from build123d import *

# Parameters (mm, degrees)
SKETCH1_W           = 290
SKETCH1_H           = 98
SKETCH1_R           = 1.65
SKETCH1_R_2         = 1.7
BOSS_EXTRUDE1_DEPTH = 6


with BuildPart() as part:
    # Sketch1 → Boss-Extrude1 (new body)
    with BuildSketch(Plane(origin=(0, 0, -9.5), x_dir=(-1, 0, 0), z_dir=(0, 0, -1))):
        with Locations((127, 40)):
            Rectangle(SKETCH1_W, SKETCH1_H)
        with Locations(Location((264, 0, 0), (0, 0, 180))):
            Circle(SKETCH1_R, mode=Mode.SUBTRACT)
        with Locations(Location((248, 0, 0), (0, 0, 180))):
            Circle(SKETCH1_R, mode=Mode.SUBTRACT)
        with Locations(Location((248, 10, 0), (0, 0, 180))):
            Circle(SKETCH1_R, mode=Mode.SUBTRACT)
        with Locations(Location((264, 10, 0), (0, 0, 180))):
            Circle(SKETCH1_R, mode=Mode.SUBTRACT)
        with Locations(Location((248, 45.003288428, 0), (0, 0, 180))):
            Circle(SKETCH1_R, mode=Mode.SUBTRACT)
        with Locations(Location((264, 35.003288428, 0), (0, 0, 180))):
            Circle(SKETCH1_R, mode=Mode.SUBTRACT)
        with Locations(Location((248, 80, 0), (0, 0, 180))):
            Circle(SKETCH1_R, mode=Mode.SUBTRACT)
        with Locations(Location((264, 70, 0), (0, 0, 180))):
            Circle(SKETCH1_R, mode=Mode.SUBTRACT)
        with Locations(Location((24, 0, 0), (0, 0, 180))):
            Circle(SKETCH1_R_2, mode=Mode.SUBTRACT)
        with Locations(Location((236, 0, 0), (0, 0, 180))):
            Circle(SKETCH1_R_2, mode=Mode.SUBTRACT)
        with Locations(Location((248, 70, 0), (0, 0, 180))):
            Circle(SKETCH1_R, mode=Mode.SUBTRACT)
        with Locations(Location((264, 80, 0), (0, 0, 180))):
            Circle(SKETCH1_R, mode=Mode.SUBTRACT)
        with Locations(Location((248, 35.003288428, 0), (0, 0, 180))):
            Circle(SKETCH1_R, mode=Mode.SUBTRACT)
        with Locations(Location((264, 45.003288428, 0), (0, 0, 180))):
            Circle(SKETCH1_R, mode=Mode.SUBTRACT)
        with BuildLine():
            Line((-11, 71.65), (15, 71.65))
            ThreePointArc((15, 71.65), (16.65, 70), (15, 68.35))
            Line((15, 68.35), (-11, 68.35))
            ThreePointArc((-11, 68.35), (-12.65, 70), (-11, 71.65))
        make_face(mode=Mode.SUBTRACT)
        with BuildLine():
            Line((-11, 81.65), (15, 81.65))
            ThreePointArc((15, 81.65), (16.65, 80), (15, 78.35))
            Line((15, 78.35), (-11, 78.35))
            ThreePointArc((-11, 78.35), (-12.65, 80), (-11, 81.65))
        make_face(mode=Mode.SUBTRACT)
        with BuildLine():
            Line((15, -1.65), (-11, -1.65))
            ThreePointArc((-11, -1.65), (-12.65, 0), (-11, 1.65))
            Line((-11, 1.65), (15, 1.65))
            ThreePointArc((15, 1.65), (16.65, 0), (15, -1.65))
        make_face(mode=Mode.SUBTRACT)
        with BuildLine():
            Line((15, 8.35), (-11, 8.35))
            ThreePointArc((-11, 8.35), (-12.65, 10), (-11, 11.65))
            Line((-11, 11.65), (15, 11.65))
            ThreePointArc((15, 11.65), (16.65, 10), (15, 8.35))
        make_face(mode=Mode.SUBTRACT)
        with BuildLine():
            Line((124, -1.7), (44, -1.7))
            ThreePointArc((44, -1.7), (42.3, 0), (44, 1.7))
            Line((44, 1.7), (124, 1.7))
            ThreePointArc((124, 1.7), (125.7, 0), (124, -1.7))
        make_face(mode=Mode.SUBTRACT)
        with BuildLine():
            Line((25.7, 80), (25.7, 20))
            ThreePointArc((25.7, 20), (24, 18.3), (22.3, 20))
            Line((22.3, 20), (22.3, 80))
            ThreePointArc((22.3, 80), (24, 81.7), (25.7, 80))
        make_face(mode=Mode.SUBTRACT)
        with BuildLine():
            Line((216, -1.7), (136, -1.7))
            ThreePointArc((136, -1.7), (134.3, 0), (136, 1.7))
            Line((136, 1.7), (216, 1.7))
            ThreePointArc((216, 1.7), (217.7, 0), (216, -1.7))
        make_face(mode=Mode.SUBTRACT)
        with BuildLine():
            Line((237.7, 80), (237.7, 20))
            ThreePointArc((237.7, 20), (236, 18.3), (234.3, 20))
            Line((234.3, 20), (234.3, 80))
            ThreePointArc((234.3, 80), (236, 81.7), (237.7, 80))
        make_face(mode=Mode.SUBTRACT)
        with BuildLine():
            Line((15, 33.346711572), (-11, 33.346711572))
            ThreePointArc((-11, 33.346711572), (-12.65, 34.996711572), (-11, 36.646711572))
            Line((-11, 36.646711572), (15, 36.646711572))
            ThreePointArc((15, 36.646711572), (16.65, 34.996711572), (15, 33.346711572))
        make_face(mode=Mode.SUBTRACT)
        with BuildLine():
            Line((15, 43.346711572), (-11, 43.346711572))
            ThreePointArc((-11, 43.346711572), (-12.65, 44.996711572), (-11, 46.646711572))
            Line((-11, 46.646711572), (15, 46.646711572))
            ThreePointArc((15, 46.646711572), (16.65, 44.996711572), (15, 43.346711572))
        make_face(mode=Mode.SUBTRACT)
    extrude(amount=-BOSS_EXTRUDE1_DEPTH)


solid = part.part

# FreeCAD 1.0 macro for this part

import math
import FreeCAD as App
import Part
import Sketcher


def add_polygon(sketch, points):
    """Adds a closed chain of lines whose ends are joined by coincident constraints."""
    first, n = sketch.GeometryCount, len(points)
    for a, b in zip(points, points[1:] + points[:1]):
        sketch.addGeometry(Part.LineSegment(App.Vector(*a, 0), App.Vector(*b, 0)), False)
    for i in range(n):
        sketch.addConstraint(Sketcher.Constraint("Coincident", first + i, 2, first + (i + 1) % n, 1))

doc = App.newDocument("Part")
body = doc.addObject("PartDesign::Body", "Body")

sketch1 = body.newObject("Sketcher::SketchObject", "Sketch")
sketch1.AttachmentSupport = (doc.getObject("XY_Plane"), [""])
sketch1.MapMode = "FlatFace"
sketch1.AttachmentOffset = App.Placement(App.Vector(0, 0, -9.5), App.Rotation())
add_polygon(sketch1, [(18, 89), (18, -9), (-272, -9), (-272, 89)])
sketch1.addGeometry(Part.ArcOfCircle(Part.Circle(App.Vector(-15, 0, 0), App.Vector(0, 0, 1), 1.6), math.radians(90), math.radians(270)), False)
sketch1.addGeometry(Part.LineSegment(App.Vector(-15, -1.6, 0), App.Vector(11, -1.6, 0)), False)
sketch1.addGeometry(Part.ArcOfCircle(Part.Circle(App.Vector(11, 0, 0), App.Vector(0, 0, 1), 1.6), math.radians(-90), math.radians(90)), False)
sketch1.addGeometry(Part.LineSegment(App.Vector(11, 1.6, 0), App.Vector(-15, 1.6, 0)), False)
sketch1.addGeometry(Part.Circle(App.Vector(-24, 0, 0), App.Vector(0, 0, 1), 1.7), False)
sketch1.addGeometry(Part.ArcOfCircle(Part.Circle(App.Vector(-15, 10, 0), App.Vector(0, 0, 1), 1.6), math.radians(90), math.radians(270)), False)
sketch1.addGeometry(Part.LineSegment(App.Vector(-15, 8.3, 0), App.Vector(11, 8.3, 0)), False)
sketch1.addGeometry(Part.ArcOfCircle(Part.Circle(App.Vector(11, 10, 0), App.Vector(0, 0, 1), 1.6), math.radians(-90), math.radians(90)), False)
sketch1.addGeometry(Part.LineSegment(App.Vector(11, 11.7, 0), App.Vector(-15, 11.7, 0)), False)
sketch1.addGeometry(Part.ArcOfCircle(Part.Circle(App.Vector(-124, 0, 0), App.Vector(0, 0, 1), 1.7), math.radians(90), math.radians(270)), False)
sketch1.addGeometry(Part.LineSegment(App.Vector(-124, -1.7, 0), App.Vector(-44, -1.7, 0)), False)
sketch1.addGeometry(Part.ArcOfCircle(Part.Circle(App.Vector(-44, 0, 0), App.Vector(0, 0, 1), 1.7), math.radians(-90), math.radians(90)), False)
sketch1.addGeometry(Part.LineSegment(App.Vector(-44, 1.7, 0), App.Vector(-124, 1.7, 0)), False)
sketch1.addGeometry(Part.ArcOfCircle(Part.Circle(App.Vector(-15, 35, 0), App.Vector(0, 0, 1), 1.6), math.radians(90), math.radians(270)), False)
sketch1.addGeometry(Part.LineSegment(App.Vector(-15, 33.3, 0), App.Vector(11, 33.3, 0)), False)
sketch1.addGeometry(Part.ArcOfCircle(Part.Circle(App.Vector(11, 35, 0), App.Vector(0, 0, 1), 1.6), math.radians(-90), math.radians(90)), False)
sketch1.addGeometry(Part.LineSegment(App.Vector(11, 36.6, 0), App.Vector(-15, 36.6, 0)), False)
sketch1.addGeometry(Part.ArcOfCircle(Part.Circle(App.Vector(-216, 0, 0), App.Vector(0, 0, 1), 1.7), math.radians(90), math.radians(270)), False)
sketch1.addGeometry(Part.LineSegment(App.Vector(-216, -1.7, 0), App.Vector(-136, -1.7, 0)), False)
sketch1.addGeometry(Part.ArcOfCircle(Part.Circle(App.Vector(-136, 0, 0), App.Vector(0, 0, 1), 1.7), math.radians(-90), math.radians(90)), False)
sketch1.addGeometry(Part.LineSegment(App.Vector(-136, 1.7, 0), App.Vector(-216, 1.7, 0)), False)
sketch1.addGeometry(Part.Circle(App.Vector(-236, 0, 0), App.Vector(0, 0, 1), 1.7), False)
sketch1.addGeometry(Part.Circle(App.Vector(-248, 0, 0), App.Vector(0, 0, 1), 1.6), False)
sketch1.addGeometry(Part.Circle(App.Vector(-264, 0, 0), App.Vector(0, 0, 1), 1.6), False)
sketch1.addGeometry(Part.Circle(App.Vector(-248, 10, 0), App.Vector(0, 0, 1), 1.6), False)
sketch1.addGeometry(Part.Circle(App.Vector(-264, 10, 0), App.Vector(0, 0, 1), 1.6), False)
sketch1.addGeometry(Part.Circle(App.Vector(-248, 35, 0), App.Vector(0, 0, 1), 1.6), False)
sketch1.addGeometry(Part.Circle(App.Vector(-264, 35, 0), App.Vector(0, 0, 1), 1.6), False)
sketch1.addGeometry(Part.ArcOfCircle(Part.Circle(App.Vector(-15, 45, 0), App.Vector(0, 0, 1), 1.6), math.radians(90), math.radians(270)), False)
sketch1.addGeometry(Part.LineSegment(App.Vector(-15, 43.3, 0), App.Vector(11, 43.3, 0)), False)
sketch1.addGeometry(Part.ArcOfCircle(Part.Circle(App.Vector(11, 45, 0), App.Vector(0, 0, 1), 1.6), math.radians(-90), math.radians(90)), False)
sketch1.addGeometry(Part.LineSegment(App.Vector(11, 46.6, 0), App.Vector(-15, 46.6, 0)), False)
sketch1.addGeometry(Part.ArcOfCircle(Part.Circle(App.Vector(-24, 80, 0), App.Vector(0, 0, 1), 1.7), math.radians(0), math.radians(180)), False)
sketch1.addGeometry(Part.LineSegment(App.Vector(-25.7, 80, 0), App.Vector(-25.7, 20, 0)), False)
sketch1.addGeometry(Part.ArcOfCircle(Part.Circle(App.Vector(-24, 20, 0), App.Vector(0, 0, 1), 1.7), math.radians(180), math.radians(360)), False)
sketch1.addGeometry(Part.LineSegment(App.Vector(-22.3, 20, 0), App.Vector(-22.3, 80, 0)), False)
sketch1.addGeometry(Part.ArcOfCircle(Part.Circle(App.Vector(11, 70, 0), App.Vector(0, 0, 1), 1.6), math.radians(-90), math.radians(90)), False)
sketch1.addGeometry(Part.LineSegment(App.Vector(11, 71.7, 0), App.Vector(-15, 71.7, 0)), False)
sketch1.addGeometry(Part.ArcOfCircle(Part.Circle(App.Vector(-15, 70, 0), App.Vector(0, 0, 1), 1.6), math.radians(90), math.radians(270)), False)
sketch1.addGeometry(Part.LineSegment(App.Vector(-15, 68.3, 0), App.Vector(11, 68.3, 0)), False)
sketch1.addGeometry(Part.ArcOfCircle(Part.Circle(App.Vector(11, 80, 0), App.Vector(0, 0, 1), 1.6), math.radians(-90), math.radians(90)), False)
sketch1.addGeometry(Part.LineSegment(App.Vector(11, 81.7, 0), App.Vector(-15, 81.7, 0)), False)
sketch1.addGeometry(Part.ArcOfCircle(Part.Circle(App.Vector(-15, 80, 0), App.Vector(0, 0, 1), 1.6), math.radians(90), math.radians(270)), False)
sketch1.addGeometry(Part.LineSegment(App.Vector(-15, 78.3, 0), App.Vector(11, 78.3, 0)), False)
sketch1.addGeometry(Part.Circle(App.Vector(-248, 45, 0), App.Vector(0, 0, 1), 1.6), False)
sketch1.addGeometry(Part.Circle(App.Vector(-264, 45, 0), App.Vector(0, 0, 1), 1.6), False)
sketch1.addGeometry(Part.ArcOfCircle(Part.Circle(App.Vector(-236, 80, 0), App.Vector(0, 0, 1), 1.7), math.radians(0), math.radians(180)), False)
sketch1.addGeometry(Part.LineSegment(App.Vector(-237.7, 80, 0), App.Vector(-237.7, 20, 0)), False)
sketch1.addGeometry(Part.ArcOfCircle(Part.Circle(App.Vector(-236, 20, 0), App.Vector(0, 0, 1), 1.7), math.radians(180), math.radians(360)), False)
sketch1.addGeometry(Part.LineSegment(App.Vector(-234.3, 20, 0), App.Vector(-234.3, 80, 0)), False)
sketch1.addGeometry(Part.Circle(App.Vector(-248, 70, 0), App.Vector(0, 0, 1), 1.6), False)
sketch1.addGeometry(Part.Circle(App.Vector(-264, 70, 0), App.Vector(0, 0, 1), 1.6), False)
sketch1.addGeometry(Part.Circle(App.Vector(-248, 80, 0), App.Vector(0, 0, 1), 1.6), False)
sketch1.addGeometry(Part.Circle(App.Vector(-264, 80, 0), App.Vector(0, 0, 1), 1.6), False)
sketch1.addConstraint([
    Sketcher.Constraint("Tangent", 4, 2, 5, 1),
    Sketcher.Constraint("Tangent", 5, 2, 6, 1),
    Sketcher.Constraint("Tangent", 6, 2, 7, 1),
    Sketcher.Constraint("Tangent", 7, 2, 4, 1),
    Sketcher.Constraint("Tangent", 9, 2, 10, 1),
    Sketcher.Constraint("Tangent", 10, 2, 11, 1),
    Sketcher.Constraint("Tangent", 11, 2, 12, 1),
    Sketcher.Constraint("Tangent", 12, 2, 9, 1),
    Sketcher.Constraint("Tangent", 13, 2, 14, 1),
    Sketcher.Constraint("Tangent", 14, 2, 15, 1),
    Sketcher.Constraint("Tangent", 15, 2, 16, 1),
    Sketcher.Constraint("Tangent", 16, 2, 13, 1),
    Sketcher.Constraint("Tangent", 17, 2, 18, 1),
    Sketcher.Constraint("Tangent", 18, 2, 19, 1),
    Sketcher.Constraint("Tangent", 19, 2, 20, 1),
    Sketcher.Constraint("Tangent", 20, 2, 17, 1),
    Sketcher.Constraint("Tangent", 21, 2, 22, 1),
    Sketcher.Constraint("Tangent", 22, 2, 23, 1),
    Sketcher.Constraint("Tangent", 23, 2, 24, 1),
    Sketcher.Constraint("Tangent", 24, 2, 21, 1),
    Sketcher.Constraint("Tangent", 32, 2, 33, 1),
    Sketcher.Constraint("Tangent", 33, 2, 34, 1),
    Sketcher.Constraint("Tangent", 34, 2, 35, 1),
    Sketcher.Constraint("Tangent", 35, 2, 32, 1),
    Sketcher.Constraint("Tangent", 36, 2, 37, 1),
    Sketcher.Constraint("Tangent", 37, 2, 38, 1),
    Sketcher.Constraint("Tangent", 38, 2, 39, 1),
    Sketcher.Constraint("Tangent", 39, 2, 36, 1),
    Sketcher.Constraint("Tangent", 40, 2, 41, 1),
    Sketcher.Constraint("Tangent", 41, 2, 42, 1),
    Sketcher.Constraint("Tangent", 42, 2, 43, 1),
    Sketcher.Constraint("Tangent", 43, 2, 40, 1),
    Sketcher.Constraint("Tangent", 44, 2, 45, 1),
    Sketcher.Constraint("Tangent", 45, 2, 46, 1),
    Sketcher.Constraint("Tangent", 46, 2, 47, 1),
    Sketcher.Constraint("Tangent", 47, 2, 44, 1),
    Sketcher.Constraint("Tangent", 50, 2, 51, 1),
    Sketcher.Constraint("Tangent", 51, 2, 52, 1),
    Sketcher.Constraint("Tangent", 52, 2, 53, 1),
    Sketcher.Constraint("Tangent", 53, 2, 50, 1),
    Sketcher.Constraint("Vertical", 0),
    Sketcher.Constraint("Horizontal", 1),
    Sketcher.Constraint("Vertical", 2),
    Sketcher.Constraint("Horizontal", 3),
    Sketcher.Constraint("Horizontal", 5),
    Sketcher.Constraint("Horizontal", 7),
    Sketcher.Constraint("Horizontal", 10),
    Sketcher.Constraint("Horizontal", 12),
    Sketcher.Constraint("Horizontal", 14),
    Sketcher.Constraint("Horizontal", 16),
    Sketcher.Constraint("Horizontal", 18),
    Sketcher.Constraint("Horizontal", 20),
    Sketcher.Constraint("Horizontal", 22),
    Sketcher.Constraint("Horizontal", 24),
    Sketcher.Constraint("Horizontal", 33),
    Sketcher.Constraint("Horizontal", 35),
    Sketcher.Constraint("Vertical", 37),
    Sketcher.Constraint("Vertical", 39),
    Sketcher.Constraint("Horizontal", 41),
    Sketcher.Constraint("Horizontal", 43),
    Sketcher.Constraint("Horizontal", 45),
    Sketcher.Constraint("Horizontal", 47),
    Sketcher.Constraint("Vertical", 51),
    Sketcher.Constraint("Vertical", 53),
    Sketcher.Constraint("Equal", 6, 9),
    Sketcher.Constraint("Equal", 8, 13),
    Sketcher.Constraint("Equal", 11, 17),
    Sketcher.Constraint("Equal", 15, 21),
    Sketcher.Constraint("Equal", 23, 25),
    Sketcher.Constraint("Equal", 19, 26),
    Sketcher.Constraint("Equal", 26, 27),
    Sketcher.Constraint("Equal", 27, 28),
    Sketcher.Constraint("Equal", 28, 29),
    Sketcher.Constraint("Equal", 29, 30),
    Sketcher.Constraint("Equal", 30, 31),
    Sketcher.Constraint("Equal", 31, 32),
    Sketcher.Constraint("Equal", 25, 36),
    Sketcher.Constraint("Equal", 34, 40),
    Sketcher.Constraint("Equal", 42, 44),
    Sketcher.Constraint("Equal", 46, 48),
    Sketcher.Constraint("Equal", 48, 49),
    Sketcher.Constraint("Equal", 38, 50),
    Sketcher.Constraint("Equal", 49, 54),
    Sketcher.Constraint("Equal", 54, 55),
    Sketcher.Constraint("Equal", 55, 56),
    Sketcher.Constraint("Equal", 56, 57),
    Sketcher.Constraint("PointOnObject", 4, 3, -1),
    Sketcher.Constraint("PointOnObject", 8, 3, -1),
    Sketcher.Constraint("PointOnObject", 13, 3, -1),
    Sketcher.Constraint("PointOnObject", 21, 3, -1),
    Sketcher.Constraint("PointOnObject", 25, 3, -1),
    Sketcher.Constraint("PointOnObject", 26, 3, -1),
    Sketcher.Constraint("PointOnObject", 27, 3, -1),
    Sketcher.Constraint("Horizontal", 11, 3, 28, 3),
    Sketcher.Constraint("Horizontal", 28, 3, 29, 3),
    Sketcher.Constraint("Horizontal", 30, 3, 31, 3),
    Sketcher.Constraint("Horizontal", 36, 3, 44, 3),
    Sketcher.Constraint("Horizontal", 48, 3, 49, 3),
    Sketcher.Constraint("Horizontal", 46, 3, 50, 3),
    Sketcher.Constraint("Horizontal", 38, 3, 52, 3),
    Sketcher.Constraint("Horizontal", 42, 3, 54, 3),
    Sketcher.Constraint("Horizontal", 54, 3, 55, 3),
    Sketcher.Constraint("Horizontal", 50, 3, 56, 3),
    Sketcher.Constraint("Horizontal", 56, 3, 57, 3),
    Sketcher.Constraint("Vertical", 4, 3, 9, 3),
    Sketcher.Constraint("Vertical", 6, 3, 11, 3),
    Sketcher.Constraint("Vertical", 9, 3, 17, 3),
    Sketcher.Constraint("Vertical", 11, 3, 19, 3),
    Sketcher.Constraint("Vertical", 26, 3, 28, 3),
    Sketcher.Constraint("Vertical", 27, 3, 29, 3),
    Sketcher.Constraint("Vertical", 28, 3, 30, 3),
    Sketcher.Constraint("Vertical", 29, 3, 31, 3),
    Sketcher.Constraint("Vertical", 17, 3, 32, 3),
    Sketcher.Constraint("Vertical", 19, 3, 34, 3),
    Sketcher.Constraint("Vertical", 8, 3, 36, 3),
    Sketcher.Constraint("Vertical", 34, 3, 40, 3),
    Sketcher.Constraint("Vertical", 32, 3, 42, 3),
    Sketcher.Constraint("Vertical", 40, 3, 44, 3),
    Sketcher.Constraint("Vertical", 42, 3, 46, 3),
    Sketcher.Constraint("Vertical", 30, 3, 48, 3),
    Sketcher.Constraint("Vertical", 31, 3, 49, 3),
    Sketcher.Constraint("Vertical", 25, 3, 50, 3),
    Sketcher.Constraint("Vertical", 48, 3, 54, 3),
    Sketcher.Constraint("Vertical", 49, 3, 55, 3),
    Sketcher.Constraint("Vertical", 54, 3, 56, 3),
    Sketcher.Constraint("Vertical", 55, 3, 57, 3),
    Sketcher.Constraint("Equal", 16, 22),
    Sketcher.Constraint("Diameter", 8, 3.4),
    Sketcher.Constraint("Diameter", 26, 3.3),
    Sketcher.Constraint("DistanceX", 1, 2, 1, 1, 290.0),
    Sketcher.Constraint("DistanceX", 5, 1, 5, 2, 26.0),
    Sketcher.Constraint("DistanceX", 14, 1, 14, 2, 80.0),
    Sketcher.Constraint("DistanceY", 0, 2, 0, 1, 98.0),
    Sketcher.Constraint("DistanceY", 37, 2, 37, 1, 60.0),
    Sketcher.Constraint("DistanceX", 4, 3, -1, 1, 15.0),
    Sketcher.Constraint("DistanceX", 8, 3, -1, 1, 24.0),
    Sketcher.Constraint("DistanceY", -1, 1, 9, 3, 10.0),
    Sketcher.Constraint("DistanceX", 13, 3, -1, 1, 124.0),
    Sketcher.Constraint("DistanceX", 21, 3, -1, 1, 216.0),
    Sketcher.Constraint("DistanceX", 25, 3, -1, 1, 236.0),
    Sketcher.Constraint("DistanceX", 26, 3, -1, 1, 248.0),
    Sketcher.Constraint("DistanceX", 27, 3, -1, 1, 264.0),
    Sketcher.Constraint("DistanceY", -1, 1, 36, 3, 80.0),
    Sketcher.Constraint("DistanceY", -1, 1, 40, 3, 70.0),
    Sketcher.Constraint("DistanceX", -1, 1, 0, 2, 18.0),
    Sketcher.Constraint("DistanceY", 0, 2, -1, 1, 9.0),
    Sketcher.Constraint("DistanceY", -1, 1, 17, 3, 34.996712),
    Sketcher.Constraint("DistanceY", -1, 1, 30, 3, 35.003288),
    Sketcher.Constraint("DistanceY", -1, 1, 32, 3, 44.996712),
    Sketcher.Constraint("DistanceY", -1, 1, 48, 3, 45.003288),
])
pad1 = body.newObject("PartDesign::Pad", "Pad")
pad1.Profile = sketch1
pad1.Length = 6

doc.recompute()
